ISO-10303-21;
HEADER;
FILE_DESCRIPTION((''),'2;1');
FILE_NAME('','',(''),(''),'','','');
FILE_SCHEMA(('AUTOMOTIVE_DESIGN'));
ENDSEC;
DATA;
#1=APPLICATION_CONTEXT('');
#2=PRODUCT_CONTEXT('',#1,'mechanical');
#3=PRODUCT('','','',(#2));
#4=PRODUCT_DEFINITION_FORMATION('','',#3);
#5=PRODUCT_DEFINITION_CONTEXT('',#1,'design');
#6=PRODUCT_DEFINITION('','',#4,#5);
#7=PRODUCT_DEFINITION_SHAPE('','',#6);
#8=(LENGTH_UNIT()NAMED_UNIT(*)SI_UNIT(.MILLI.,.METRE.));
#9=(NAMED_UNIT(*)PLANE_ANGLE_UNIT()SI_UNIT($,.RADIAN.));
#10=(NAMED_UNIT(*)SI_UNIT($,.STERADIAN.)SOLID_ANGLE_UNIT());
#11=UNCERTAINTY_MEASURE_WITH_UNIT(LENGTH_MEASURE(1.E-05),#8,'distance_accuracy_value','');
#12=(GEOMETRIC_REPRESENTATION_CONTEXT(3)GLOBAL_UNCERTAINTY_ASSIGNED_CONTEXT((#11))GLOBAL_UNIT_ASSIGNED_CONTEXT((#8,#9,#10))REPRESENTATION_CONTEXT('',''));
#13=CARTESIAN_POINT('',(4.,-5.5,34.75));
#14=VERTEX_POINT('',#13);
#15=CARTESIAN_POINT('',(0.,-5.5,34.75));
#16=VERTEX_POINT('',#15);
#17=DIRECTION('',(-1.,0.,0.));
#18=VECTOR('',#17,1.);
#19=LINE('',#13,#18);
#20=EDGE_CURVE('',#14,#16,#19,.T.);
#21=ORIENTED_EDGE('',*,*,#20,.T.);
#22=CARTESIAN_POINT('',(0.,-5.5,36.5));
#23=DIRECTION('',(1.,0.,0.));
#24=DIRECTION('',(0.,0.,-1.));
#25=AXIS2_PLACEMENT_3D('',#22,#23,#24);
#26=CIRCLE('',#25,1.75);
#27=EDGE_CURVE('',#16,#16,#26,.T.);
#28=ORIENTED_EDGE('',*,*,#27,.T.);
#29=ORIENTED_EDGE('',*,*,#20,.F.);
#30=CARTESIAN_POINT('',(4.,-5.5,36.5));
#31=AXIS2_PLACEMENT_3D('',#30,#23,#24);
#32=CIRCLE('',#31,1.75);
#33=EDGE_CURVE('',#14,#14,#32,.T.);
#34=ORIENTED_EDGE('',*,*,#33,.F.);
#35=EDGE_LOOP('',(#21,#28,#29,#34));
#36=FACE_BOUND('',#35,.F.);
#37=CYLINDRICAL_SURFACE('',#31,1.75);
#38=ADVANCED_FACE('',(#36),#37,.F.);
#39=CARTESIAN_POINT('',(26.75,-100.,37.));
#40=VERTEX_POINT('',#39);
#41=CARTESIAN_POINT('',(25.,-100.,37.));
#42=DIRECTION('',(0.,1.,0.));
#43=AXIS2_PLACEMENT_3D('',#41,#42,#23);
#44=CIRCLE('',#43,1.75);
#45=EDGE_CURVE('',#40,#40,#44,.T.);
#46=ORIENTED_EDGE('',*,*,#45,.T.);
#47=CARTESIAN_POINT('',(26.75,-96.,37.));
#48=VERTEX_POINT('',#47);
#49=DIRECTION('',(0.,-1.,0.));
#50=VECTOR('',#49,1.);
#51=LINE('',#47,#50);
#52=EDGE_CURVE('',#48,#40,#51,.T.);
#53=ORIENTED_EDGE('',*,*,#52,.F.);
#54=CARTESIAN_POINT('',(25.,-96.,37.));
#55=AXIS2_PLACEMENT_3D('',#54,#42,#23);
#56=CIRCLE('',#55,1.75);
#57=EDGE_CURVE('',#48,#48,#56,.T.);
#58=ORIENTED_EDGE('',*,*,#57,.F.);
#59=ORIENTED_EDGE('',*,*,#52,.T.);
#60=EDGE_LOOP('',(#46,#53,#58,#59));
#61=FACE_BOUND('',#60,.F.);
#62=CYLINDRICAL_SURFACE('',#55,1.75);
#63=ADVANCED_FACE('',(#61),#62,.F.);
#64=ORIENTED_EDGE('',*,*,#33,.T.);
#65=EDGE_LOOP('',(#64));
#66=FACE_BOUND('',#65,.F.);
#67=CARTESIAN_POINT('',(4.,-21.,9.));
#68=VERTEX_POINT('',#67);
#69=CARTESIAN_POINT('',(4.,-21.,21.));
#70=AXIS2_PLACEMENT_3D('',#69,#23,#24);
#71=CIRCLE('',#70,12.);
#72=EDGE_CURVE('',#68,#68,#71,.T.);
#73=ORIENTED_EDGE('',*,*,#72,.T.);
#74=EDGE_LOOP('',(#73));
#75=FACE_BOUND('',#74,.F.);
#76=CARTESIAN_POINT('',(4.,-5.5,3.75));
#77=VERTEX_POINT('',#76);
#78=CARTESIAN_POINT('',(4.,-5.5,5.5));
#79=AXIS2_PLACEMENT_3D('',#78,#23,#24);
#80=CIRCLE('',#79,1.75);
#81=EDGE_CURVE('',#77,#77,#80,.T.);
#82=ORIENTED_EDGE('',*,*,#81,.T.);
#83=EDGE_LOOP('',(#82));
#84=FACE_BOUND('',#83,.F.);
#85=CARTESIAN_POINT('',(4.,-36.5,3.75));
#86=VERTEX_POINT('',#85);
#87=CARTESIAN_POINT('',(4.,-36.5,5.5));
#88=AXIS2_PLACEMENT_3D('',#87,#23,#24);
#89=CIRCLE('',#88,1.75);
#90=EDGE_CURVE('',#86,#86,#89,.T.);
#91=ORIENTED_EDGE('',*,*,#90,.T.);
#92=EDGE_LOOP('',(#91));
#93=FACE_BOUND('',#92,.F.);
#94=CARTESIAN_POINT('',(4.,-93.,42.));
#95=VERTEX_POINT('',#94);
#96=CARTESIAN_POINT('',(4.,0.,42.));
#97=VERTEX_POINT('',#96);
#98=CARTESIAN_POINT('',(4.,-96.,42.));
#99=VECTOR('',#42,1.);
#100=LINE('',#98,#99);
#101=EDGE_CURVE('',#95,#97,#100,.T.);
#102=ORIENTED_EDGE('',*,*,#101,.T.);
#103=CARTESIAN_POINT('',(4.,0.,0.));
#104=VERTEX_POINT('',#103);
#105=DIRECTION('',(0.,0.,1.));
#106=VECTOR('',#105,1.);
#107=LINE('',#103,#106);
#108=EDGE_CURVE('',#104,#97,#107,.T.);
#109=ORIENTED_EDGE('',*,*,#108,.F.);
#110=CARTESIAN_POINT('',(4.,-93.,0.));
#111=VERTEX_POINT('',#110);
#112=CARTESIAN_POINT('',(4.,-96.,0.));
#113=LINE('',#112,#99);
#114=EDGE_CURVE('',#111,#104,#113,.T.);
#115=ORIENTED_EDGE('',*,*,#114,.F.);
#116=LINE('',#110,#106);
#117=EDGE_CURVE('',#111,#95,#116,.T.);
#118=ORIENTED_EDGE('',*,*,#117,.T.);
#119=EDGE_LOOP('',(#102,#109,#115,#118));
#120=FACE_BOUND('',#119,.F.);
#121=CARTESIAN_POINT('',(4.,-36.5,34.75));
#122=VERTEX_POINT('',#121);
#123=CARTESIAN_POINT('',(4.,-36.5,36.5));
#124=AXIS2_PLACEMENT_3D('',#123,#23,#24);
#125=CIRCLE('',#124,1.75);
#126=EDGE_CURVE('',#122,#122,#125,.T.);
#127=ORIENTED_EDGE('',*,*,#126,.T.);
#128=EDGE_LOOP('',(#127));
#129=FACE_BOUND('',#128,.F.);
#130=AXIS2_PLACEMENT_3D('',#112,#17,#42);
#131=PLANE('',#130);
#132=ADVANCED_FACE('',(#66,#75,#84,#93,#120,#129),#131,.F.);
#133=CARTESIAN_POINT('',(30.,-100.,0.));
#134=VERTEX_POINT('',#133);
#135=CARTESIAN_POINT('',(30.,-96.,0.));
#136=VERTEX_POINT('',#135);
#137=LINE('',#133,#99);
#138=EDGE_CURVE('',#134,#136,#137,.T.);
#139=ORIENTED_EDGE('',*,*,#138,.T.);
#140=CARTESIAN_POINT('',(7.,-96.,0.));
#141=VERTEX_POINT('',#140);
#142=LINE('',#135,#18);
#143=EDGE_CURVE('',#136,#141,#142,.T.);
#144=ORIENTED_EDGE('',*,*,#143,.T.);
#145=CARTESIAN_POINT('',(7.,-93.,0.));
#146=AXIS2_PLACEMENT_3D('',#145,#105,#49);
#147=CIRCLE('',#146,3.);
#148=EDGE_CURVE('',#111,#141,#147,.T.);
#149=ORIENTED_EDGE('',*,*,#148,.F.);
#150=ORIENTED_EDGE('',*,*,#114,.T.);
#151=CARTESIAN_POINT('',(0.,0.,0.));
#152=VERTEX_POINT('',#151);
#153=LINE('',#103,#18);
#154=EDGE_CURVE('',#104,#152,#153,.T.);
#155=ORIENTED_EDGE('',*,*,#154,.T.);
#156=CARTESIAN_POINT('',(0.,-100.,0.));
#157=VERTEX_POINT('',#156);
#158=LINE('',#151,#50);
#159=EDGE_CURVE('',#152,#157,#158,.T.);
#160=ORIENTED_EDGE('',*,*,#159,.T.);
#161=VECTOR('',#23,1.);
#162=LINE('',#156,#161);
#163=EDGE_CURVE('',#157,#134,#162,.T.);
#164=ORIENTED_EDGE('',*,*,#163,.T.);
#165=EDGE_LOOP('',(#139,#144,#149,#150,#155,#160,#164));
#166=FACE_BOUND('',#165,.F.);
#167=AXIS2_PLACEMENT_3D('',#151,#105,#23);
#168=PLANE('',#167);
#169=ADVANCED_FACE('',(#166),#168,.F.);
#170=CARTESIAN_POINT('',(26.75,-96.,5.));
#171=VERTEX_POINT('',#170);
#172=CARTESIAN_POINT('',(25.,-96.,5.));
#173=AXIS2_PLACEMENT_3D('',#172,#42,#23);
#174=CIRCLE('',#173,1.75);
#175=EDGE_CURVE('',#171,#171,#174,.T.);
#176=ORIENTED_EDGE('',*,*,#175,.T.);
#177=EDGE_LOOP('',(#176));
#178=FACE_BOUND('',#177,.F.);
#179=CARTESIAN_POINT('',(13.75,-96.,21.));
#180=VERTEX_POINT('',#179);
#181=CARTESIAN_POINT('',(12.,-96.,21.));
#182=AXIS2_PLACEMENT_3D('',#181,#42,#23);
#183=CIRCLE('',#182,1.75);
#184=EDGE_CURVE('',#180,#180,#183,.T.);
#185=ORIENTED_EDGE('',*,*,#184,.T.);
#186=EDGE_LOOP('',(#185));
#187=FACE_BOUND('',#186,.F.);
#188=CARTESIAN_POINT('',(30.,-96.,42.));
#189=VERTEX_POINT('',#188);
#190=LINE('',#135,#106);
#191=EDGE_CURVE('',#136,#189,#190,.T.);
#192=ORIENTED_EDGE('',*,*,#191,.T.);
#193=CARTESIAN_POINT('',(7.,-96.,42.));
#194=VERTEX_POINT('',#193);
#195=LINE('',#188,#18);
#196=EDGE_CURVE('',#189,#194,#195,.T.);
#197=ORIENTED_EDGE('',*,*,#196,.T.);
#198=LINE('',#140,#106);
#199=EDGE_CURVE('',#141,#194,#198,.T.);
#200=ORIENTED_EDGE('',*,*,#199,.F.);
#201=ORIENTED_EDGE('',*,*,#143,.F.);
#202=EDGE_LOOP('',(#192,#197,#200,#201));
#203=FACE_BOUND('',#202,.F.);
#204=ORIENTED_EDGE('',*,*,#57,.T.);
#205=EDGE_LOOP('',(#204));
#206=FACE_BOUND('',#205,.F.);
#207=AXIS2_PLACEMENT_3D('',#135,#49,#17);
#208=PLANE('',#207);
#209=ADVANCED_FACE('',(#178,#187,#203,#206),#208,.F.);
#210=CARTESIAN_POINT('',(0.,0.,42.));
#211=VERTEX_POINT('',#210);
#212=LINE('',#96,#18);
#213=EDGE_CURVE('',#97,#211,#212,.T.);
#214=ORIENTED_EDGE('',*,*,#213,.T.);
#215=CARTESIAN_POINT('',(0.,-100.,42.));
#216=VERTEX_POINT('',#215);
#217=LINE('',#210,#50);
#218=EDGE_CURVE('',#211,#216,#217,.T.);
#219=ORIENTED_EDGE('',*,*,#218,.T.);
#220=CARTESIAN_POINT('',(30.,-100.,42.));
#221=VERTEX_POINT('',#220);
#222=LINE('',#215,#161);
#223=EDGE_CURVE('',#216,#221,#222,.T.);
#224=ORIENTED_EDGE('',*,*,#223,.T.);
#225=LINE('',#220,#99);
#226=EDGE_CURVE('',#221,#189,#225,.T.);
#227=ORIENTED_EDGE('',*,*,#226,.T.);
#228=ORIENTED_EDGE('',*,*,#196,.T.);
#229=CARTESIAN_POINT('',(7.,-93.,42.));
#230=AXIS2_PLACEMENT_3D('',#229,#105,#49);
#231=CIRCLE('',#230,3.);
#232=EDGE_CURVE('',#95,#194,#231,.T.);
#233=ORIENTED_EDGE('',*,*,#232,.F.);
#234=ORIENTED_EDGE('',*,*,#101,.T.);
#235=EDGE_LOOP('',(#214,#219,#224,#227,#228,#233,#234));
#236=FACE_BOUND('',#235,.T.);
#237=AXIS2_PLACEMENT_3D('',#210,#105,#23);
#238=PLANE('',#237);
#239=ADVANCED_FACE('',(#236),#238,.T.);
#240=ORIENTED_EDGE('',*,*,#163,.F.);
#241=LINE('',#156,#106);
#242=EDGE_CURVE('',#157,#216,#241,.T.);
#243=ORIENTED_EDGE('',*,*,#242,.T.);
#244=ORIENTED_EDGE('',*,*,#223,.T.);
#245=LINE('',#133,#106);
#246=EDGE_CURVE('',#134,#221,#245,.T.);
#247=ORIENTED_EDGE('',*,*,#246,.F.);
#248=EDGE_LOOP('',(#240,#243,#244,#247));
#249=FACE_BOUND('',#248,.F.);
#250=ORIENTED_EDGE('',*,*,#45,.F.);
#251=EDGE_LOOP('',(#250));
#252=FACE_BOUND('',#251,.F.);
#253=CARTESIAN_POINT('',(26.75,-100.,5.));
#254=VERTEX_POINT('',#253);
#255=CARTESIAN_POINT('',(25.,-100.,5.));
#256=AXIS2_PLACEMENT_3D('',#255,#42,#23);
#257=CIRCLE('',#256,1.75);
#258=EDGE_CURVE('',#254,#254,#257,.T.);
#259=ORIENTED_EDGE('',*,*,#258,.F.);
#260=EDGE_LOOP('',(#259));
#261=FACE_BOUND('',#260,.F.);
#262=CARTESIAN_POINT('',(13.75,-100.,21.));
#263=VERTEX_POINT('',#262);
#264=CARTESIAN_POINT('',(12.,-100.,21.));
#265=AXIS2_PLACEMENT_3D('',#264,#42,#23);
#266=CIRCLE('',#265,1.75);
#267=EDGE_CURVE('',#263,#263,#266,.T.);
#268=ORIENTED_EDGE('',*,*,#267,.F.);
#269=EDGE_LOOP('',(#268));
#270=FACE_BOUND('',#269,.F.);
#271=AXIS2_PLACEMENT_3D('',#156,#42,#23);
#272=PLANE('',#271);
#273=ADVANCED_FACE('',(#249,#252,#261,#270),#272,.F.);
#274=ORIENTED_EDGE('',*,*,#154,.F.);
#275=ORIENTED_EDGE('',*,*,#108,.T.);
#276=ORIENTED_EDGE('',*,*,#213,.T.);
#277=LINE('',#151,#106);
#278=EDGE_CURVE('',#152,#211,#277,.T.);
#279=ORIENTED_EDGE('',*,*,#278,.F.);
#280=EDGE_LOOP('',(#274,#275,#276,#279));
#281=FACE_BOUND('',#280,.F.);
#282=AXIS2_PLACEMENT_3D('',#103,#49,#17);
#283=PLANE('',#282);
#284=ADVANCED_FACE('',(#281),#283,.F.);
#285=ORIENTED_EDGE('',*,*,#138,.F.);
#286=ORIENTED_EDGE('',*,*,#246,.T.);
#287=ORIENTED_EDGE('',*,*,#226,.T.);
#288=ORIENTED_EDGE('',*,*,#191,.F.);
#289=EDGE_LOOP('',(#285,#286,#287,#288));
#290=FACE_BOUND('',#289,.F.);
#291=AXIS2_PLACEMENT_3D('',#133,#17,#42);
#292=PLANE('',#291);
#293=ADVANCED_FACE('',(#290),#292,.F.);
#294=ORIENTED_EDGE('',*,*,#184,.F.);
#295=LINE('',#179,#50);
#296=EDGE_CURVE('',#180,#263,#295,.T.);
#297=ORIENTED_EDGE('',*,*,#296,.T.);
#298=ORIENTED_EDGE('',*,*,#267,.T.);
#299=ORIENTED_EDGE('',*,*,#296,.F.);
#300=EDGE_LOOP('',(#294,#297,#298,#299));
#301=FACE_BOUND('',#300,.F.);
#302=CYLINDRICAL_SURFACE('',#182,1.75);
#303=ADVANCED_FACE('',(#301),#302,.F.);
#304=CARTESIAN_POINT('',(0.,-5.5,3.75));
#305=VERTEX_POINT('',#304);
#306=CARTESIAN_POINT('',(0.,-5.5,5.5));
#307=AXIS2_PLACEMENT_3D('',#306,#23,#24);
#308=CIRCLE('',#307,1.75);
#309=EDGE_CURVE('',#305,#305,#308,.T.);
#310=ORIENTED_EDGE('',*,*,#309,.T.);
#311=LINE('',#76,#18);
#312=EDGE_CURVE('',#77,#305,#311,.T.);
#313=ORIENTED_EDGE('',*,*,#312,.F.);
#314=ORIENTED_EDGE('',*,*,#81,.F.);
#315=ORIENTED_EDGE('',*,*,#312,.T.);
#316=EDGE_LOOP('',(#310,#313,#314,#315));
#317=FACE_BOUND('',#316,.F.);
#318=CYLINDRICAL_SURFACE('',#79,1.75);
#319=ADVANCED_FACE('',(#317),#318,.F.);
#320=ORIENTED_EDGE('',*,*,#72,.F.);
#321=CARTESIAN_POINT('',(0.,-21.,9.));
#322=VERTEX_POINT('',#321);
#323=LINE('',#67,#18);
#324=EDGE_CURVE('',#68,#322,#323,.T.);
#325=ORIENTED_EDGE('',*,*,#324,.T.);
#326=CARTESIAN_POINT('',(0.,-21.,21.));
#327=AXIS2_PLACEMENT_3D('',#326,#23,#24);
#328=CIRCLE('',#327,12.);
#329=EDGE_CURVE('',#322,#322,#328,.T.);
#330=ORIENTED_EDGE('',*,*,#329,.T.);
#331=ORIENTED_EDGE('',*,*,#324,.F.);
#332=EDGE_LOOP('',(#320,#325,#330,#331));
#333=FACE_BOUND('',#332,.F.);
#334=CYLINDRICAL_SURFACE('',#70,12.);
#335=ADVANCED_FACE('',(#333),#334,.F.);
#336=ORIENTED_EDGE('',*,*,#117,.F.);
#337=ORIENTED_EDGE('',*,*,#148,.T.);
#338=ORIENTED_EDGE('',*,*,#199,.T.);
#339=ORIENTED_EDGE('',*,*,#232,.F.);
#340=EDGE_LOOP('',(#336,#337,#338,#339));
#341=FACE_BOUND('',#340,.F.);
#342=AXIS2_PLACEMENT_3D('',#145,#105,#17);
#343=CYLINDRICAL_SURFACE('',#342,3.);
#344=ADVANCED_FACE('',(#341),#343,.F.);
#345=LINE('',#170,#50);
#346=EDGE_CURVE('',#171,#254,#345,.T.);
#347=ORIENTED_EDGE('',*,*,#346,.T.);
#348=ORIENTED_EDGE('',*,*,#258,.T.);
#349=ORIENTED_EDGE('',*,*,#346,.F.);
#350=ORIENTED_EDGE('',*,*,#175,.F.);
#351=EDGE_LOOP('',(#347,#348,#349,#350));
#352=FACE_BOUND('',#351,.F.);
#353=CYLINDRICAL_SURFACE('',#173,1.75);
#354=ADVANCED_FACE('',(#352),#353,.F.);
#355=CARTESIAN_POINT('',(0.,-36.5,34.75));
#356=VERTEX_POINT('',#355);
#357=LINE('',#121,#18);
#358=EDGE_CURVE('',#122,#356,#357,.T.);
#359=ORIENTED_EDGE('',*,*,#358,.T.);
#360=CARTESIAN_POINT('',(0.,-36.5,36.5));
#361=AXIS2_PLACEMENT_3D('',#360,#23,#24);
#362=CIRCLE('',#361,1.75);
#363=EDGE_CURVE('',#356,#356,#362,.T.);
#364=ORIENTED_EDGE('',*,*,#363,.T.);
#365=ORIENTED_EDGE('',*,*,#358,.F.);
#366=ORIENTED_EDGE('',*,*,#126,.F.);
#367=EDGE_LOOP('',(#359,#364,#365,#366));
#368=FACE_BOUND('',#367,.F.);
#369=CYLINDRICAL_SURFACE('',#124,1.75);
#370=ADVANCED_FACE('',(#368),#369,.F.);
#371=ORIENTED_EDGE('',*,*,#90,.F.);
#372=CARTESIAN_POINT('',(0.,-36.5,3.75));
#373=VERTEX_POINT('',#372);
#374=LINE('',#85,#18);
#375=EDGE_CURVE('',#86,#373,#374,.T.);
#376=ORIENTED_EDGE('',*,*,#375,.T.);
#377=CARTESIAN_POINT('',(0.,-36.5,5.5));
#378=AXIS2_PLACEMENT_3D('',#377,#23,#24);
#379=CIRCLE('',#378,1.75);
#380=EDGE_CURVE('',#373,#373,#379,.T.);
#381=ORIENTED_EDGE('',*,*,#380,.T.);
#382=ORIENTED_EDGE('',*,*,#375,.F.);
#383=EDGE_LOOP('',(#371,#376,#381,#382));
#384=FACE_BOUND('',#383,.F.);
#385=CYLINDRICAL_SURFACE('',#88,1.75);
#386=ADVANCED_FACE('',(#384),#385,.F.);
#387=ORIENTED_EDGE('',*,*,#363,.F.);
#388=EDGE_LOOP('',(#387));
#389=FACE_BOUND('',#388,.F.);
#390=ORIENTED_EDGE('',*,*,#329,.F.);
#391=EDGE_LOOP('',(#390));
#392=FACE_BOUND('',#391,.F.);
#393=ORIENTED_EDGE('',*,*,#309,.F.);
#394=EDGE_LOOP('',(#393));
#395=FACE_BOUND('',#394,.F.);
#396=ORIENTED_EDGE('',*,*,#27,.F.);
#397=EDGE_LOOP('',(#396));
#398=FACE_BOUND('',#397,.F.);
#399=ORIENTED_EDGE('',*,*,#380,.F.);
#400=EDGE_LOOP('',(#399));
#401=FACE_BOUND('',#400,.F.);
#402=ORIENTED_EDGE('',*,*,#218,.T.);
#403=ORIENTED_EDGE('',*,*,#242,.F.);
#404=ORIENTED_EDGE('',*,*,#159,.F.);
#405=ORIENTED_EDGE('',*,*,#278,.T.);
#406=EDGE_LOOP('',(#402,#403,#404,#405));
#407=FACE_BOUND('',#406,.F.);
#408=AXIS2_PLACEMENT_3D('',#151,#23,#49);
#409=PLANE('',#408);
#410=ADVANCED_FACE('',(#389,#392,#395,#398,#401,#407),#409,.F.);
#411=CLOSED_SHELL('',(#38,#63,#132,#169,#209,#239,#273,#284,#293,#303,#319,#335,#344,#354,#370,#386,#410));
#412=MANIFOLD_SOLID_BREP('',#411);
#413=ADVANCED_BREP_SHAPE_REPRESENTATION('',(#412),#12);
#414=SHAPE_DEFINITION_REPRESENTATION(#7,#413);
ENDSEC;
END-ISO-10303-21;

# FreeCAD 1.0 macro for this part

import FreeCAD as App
import Part
import Sketcher


def edges_at(feature, points):
    """Names of the edges that pass closest to the given points."""
    edges = feature.Shape.Edges
    near = lambda p: min(range(len(edges)), key=lambda i: edges[i].distToShape(Part.Vertex(*p))[0])
    return sorted({f"Edge{near(p) + 1}" for p in points})


def add_polygon(sketch, points):
    """Adds a closed chain of lines whose ends are joined by coincident constraints."""
    first, n = sketch.GeometryCount, len(points)
    for a, b in zip(points, points[1:] + points[:1]):
        sketch.addGeometry(Part.LineSegment(App.Vector(*a, 0), App.Vector(*b, 0)), False)
    for i in range(n):
        sketch.addConstraint(Sketcher.Constraint("Coincident", first + i, 2, first + (i + 1) % n, 1))

doc = App.newDocument("Part")
body = doc.addObject("PartDesign::Body", "Body")

# Sketch on XY plane
sketch1 = body.newObject("Sketcher::SketchObject", "Sketch")
sketch1.AttachmentSupport = (doc.getObject("XY_Plane"), [""])
sketch1.MapMode = "FlatFace"
add_polygon(sketch1, [(4, 0), (0, 0), (0, -100), (30, -100), (30, -96), (4, -96)])  # lines 0-5
sketch1.addConstraint([
    Sketcher.Constraint("Horizontal", 0),
    Sketcher.Constraint("Vertical", 1),
    Sketcher.Constraint("Horizontal", 2),
    Sketcher.Constraint("Vertical", 3),
    Sketcher.Constraint("Horizontal", 4),
    Sketcher.Constraint("Vertical", 5),
    Sketcher.Constraint("Coincident", 0, 2, -1, 1),
    Sketcher.Constraint("Equal", 0, 3),
    Sketcher.Constraint("DistanceX", 0, 2, 0, 1, 4.0),
    Sketcher.Constraint("DistanceX", 2, 1, 2, 2, 30.0),
    Sketcher.Constraint("DistanceY", 1, 2, 1, 1, 100.0),
])
pad1 = body.newObject("PartDesign::Pad", "Pad")
pad1.Profile = sketch1
pad1.Length = 42

# Sketch on YZ plane
sketch2 = body.newObject("Sketcher::SketchObject", "Sketch001")
sketch2.AttachmentSupport = (doc.getObject("YZ_Plane"), [""])
sketch2.MapMode = "FlatFace"
sketch2.AttachmentOffset = App.Placement(App.Vector(0, 0, 4), App.Rotation())
sketch2.addGeometry([
    Part.Circle(App.Vector(-5.5, 36.5, 0), App.Vector(0, 0, 1), 1.8),  # 0
    Part.Circle(App.Vector(-5.5, 5.5, 0), App.Vector(0, 0, 1), 1.8),  # 1
    Part.Circle(App.Vector(-36.5, 36.5, 0), App.Vector(0, 0, 1), 1.8),  # 2
    Part.Circle(App.Vector(-36.5, 5.5, 0), App.Vector(0, 0, 1), 1.8),  # 3
    Part.Circle(App.Vector(-21, 21, 0), App.Vector(0, 0, 1), 12),  # 4
], False)
sketch2.addConstraint([
    Sketcher.Constraint("Equal", 0, 1),
    Sketcher.Constraint("Equal", 1, 2),
    Sketcher.Constraint("Equal", 2, 3),
    Sketcher.Constraint("Horizontal", 0, 3, 2, 3),
    Sketcher.Constraint("Horizontal", 1, 3, 3, 3),
    Sketcher.Constraint("Vertical", 0, 3, 1, 3),
    Sketcher.Constraint("Vertical", 2, 3, 3, 3),
    Sketcher.Constraint("Diameter", 4, 24.0),
    Sketcher.Constraint("Diameter", 0, 3.5),
    Sketcher.Constraint("DistanceX", 4, 3, -1, 1, 21.0),
    Sketcher.Constraint("DistanceY", -1, 1, 4, 3, 21.0),
    Sketcher.Constraint("DistanceY", 1, 3, 0, 3, 31.0),
    Sketcher.Constraint("DistanceX", 2, 3, 0, 3, 31.0),
    Sketcher.Constraint("DistanceX", 0, 3, -1, 1, 5.5),
    Sketcher.Constraint("DistanceY", -1, 1, 1, 3, 5.5),
])
pocket1 = body.newObject("PartDesign::Pocket", "Pocket")
pocket1.Profile = sketch2
pocket1.Length = 4

# Sketch on XZ plane
sketch3 = body.newObject("Sketcher::SketchObject", "Sketch002")
sketch3.AttachmentSupport = (doc.getObject("XZ_Plane"), [""])
sketch3.MapMode = "FlatFace"
sketch3.AttachmentOffset = App.Placement(App.Vector(0, 0, 96), App.Rotation())
sketch3.addGeometry([
    Part.Circle(App.Vector(25, 5, 0), App.Vector(0, 0, 1), 1.8),
    Part.Circle(App.Vector(25, 37, 0), App.Vector(0, 0, 1), 1.8),
    Part.Circle(App.Vector(12, 21, 0), App.Vector(0, 0, 1), 1.8),
], False)
sketch3.addConstraint([
    Sketcher.Constraint("Equal", 0, 1),
    Sketcher.Constraint("Equal", 1, 2),
    Sketcher.Constraint("Vertical", 0, 3, 1, 3),
    Sketcher.Constraint("Diameter", 0, 3.5),
    Sketcher.Constraint("DistanceY", -1, 1, 0, 3, 5.0),
    Sketcher.Constraint("DistanceX", -1, 1, 2, 3, 12.0),
    Sketcher.Constraint("DistanceY", -1, 1, 2, 3, 21.0),
    Sketcher.Constraint("DistanceX", -1, 1, 0, 3, 25.0),
    Sketcher.Constraint("DistanceY", -1, 1, 1, 3, 37.0),
])
pocket2 = body.newObject("PartDesign::Pocket", "Pocket001")
pocket2.Profile = sketch3
pocket2.Length = 4
pocket2.Reversed = True
doc.recompute()

fillet = body.newObject("PartDesign::Fillet", "Fillet")
fillet.Base = (pocket2, edges_at(pocket2, [(4, -96, 21)]))
fillet.Radius = 3

doc.recompute()
